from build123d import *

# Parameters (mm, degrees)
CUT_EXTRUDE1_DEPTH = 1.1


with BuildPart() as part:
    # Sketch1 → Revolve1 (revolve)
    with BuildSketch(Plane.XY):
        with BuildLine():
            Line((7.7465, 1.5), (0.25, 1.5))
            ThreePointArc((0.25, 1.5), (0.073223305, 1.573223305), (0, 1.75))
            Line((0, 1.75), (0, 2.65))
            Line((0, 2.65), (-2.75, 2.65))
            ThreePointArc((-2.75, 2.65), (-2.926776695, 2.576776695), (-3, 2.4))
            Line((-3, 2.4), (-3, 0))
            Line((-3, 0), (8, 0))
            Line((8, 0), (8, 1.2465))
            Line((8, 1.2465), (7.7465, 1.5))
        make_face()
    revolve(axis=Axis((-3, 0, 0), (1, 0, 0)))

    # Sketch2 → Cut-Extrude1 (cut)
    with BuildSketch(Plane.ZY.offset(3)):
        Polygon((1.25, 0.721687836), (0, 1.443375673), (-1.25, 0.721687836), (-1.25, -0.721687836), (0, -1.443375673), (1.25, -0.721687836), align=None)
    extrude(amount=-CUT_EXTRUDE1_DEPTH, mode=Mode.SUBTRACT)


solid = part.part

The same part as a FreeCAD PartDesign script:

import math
import FreeCAD as App
import Part
import Sketcher
from FreeCAD import Vector
Q = App.Units.Quantity


def add_polygon(sketch, points):
    """Adds a closed chain of lines whose ends are joined by coincident constraints."""
    first, n = sketch.GeometryCount, len(points)
    for a, b in zip(points, points[1:] + points[:1]):
        sketch.addGeometry(Part.LineSegment(App.Vector(*a, 0), App.Vector(*b, 0)), False)
    for i in range(n):
        sketch.addConstraint(Sketcher.Constraint("Coincident", first + i, 2, first + (i + 1) % n, 1))

doc = App.newDocument("Part")
body = doc.addObject("PartDesign::Body", "Body")

# Sketch on XY plane
sketch1 = body.newObject("Sketcher::SketchObject", "Sketch")
sketch1.AttachmentSupport = (doc.getObject("XY_Plane"), [""])
sketch1.MapMode = "FlatFace"
sketch1.addGeometry(Part.LineSegment(Vector(7.75, 1.5, 0), Vector(0.25, 1.5, 0)), False)
sketch1.addGeometry(Part.ArcOfCircle(Part.Circle(Vector(0.25, 1.75, 0), Vector(0, 0, 1), 0.25), math.radians(-180), math.radians(-90)), False)
sketch1.addGeometry(Part.LineSegment(Vector(0, 1.75, 0), Vector(0, 2.65, 0)), False)
sketch1.addGeometry(Part.LineSegment(Vector(0, 2.65, 0), Vector(-2.75, 2.65, 0)), False)
sketch1.addGeometry(Part.ArcOfCircle(Part.Circle(Vector(-2.75, 2.4, 0), Vector(0, 0, 1), 0.25), math.radians(90), math.radians(180)), False)
sketch1.addGeometry(Part.LineSegment(Vector(-3, 2.4, 0), Vector(-3, 0, 0)), False)
sketch1.addGeometry(Part.LineSegment(Vector(-3, 0, 0), Vector(8, 0, 0)), False)
sketch1.addGeometry(Part.LineSegment(Vector(8, 0, 0), Vector(8, 1.25, 0)), False)
sketch1.addGeometry(Part.LineSegment(Vector(8, 1.25, 0), Vector(7.75, 1.5, 0)), False)
sketch1.addConstraint(Sketcher.Constraint("Tangent", 0, 2, 1, 2))
sketch1.addConstraint(Sketcher.Constraint("Tangent", 1, 1, 2, 1))
sketch1.addConstraint(Sketcher.Constraint("Coincident", 2, 2, 3, 1))
sketch1.addConstraint(Sketcher.Constraint("Tangent", 3, 2, 4, 1))
sketch1.addConstraint(Sketcher.Constraint("Tangent", 4, 2, 5, 1))
sketch1.addConstraint(Sketcher.Constraint("Coincident", 5, 2, 6, 1))
sketch1.addConstraint(Sketcher.Constraint("Coincident", 6, 2, 7, 1))
sketch1.addConstraint(Sketcher.Constraint("Coincident", 7, 2, 8, 1))
sketch1.addConstraint(Sketcher.Constraint("Coincident", 8, 2, 0, 1))
sketch1.addConstraint(Sketcher.Constraint("Horizontal", 0))
sketch1.addConstraint(Sketcher.Constraint("Vertical", 2))
sketch1.addConstraint(Sketcher.Constraint("Horizontal", 3))
sketch1.addConstraint(Sketcher.Constraint("Vertical", 5))
sketch1.addConstraint(Sketcher.Constraint("Horizontal", 6))
sketch1.addConstraint(Sketcher.Constraint("Vertical", 7))
sketch1.addConstraint(Sketcher.Constraint("Equal", 1, 4))
sketch1.addConstraint(Sketcher.Constraint("PointOnObject", 1, 1, -2))
sketch1.addConstraint(Sketcher.Constraint("PointOnObject", 5, 2, -1))
sketch1.addConstraint(Sketcher.Constraint("DistanceX", 6, 1, 6, 2, 11.0))
sketch1.addConstraint(Sketcher.Constraint("Angle", 8, Q("135 deg")))
sketch1.addConstraint(Sketcher.Constraint("Radius", 1, 0.25))
sketch1.addConstraint(Sketcher.Constraint("DistanceY", 2, 1, 2, 2, 0.9))
sketch1.addConstraint(Sketcher.Constraint("DistanceY", 5, 2, 5, 1, 2.4))
sketch1.addConstraint(Sketcher.Constraint("DistanceX", 4, 2, -1, 1, 3.0))
sketch1.addConstraint(Sketcher.Constraint("DistanceX", 0, 2, 0, 1, 7.4965))
revolution = body.newObject("PartDesign::Revolution", "Revolution")
revolution.Profile = sketch1
revolution.ReferenceAxis = (sketch1, ["H_Axis"])
revolution.Angle = 360

# Sketch on YZ plane
sketch2 = body.newObject("Sketcher::SketchObject", "Sketch001")
sketch2.AttachmentSupport = (doc.getObject("YZ_Plane"), [""])
sketch2.MapMode = "FlatFace"
sketch2.AttachmentOffset = App.Placement(Vector(0, 0, -3), App.Rotation())
add_polygon(sketch2, [(0.7, 1.2), (1.4, 0), (0.7, -1.2), (-0.7, -1.2), (-1.4, 0), (-0.7, 1.2)])  # lines 0-5
sketch2.addConstraint(Sketcher.Constraint("Horizontal", 2))
sketch2.addConstraint(Sketcher.Constraint("Horizontal", 5))
sketch2.addConstraint(Sketcher.Constraint("Symmetric", 0, 2, 3, 2, -1, 1))
sketch2.addConstraint(Sketcher.Constraint("Symmetric", 1, 2, 4, 2, -1, 1))
sketch2.addConstraint(Sketcher.Constraint("PointOnObject", 0, 2, -1))
sketch2.addConstraint(Sketcher.Constraint("Parallel", 0, 3))
sketch2.addConstraint(Sketcher.Constraint("Vertical", 2, 2, 4, 2))
sketch2.addConstraint(Sketcher.Constraint("Angle", 0, Q("-60 deg")))
sketch2.addConstraint(Sketcher.Constraint("DistanceY", 2, 2, 4, 2, 2.5))
sketch2.addConstraint(Sketcher.Constraint("DistanceX", 2, 2, 2, 1, 1.443376))
pocket1 = body.newObject("PartDesign::Pocket", "Pocket")
pocket1.Profile = sketch2
pocket1.Length = 1.1
pocket1.Reversed = True

doc.recompute()
